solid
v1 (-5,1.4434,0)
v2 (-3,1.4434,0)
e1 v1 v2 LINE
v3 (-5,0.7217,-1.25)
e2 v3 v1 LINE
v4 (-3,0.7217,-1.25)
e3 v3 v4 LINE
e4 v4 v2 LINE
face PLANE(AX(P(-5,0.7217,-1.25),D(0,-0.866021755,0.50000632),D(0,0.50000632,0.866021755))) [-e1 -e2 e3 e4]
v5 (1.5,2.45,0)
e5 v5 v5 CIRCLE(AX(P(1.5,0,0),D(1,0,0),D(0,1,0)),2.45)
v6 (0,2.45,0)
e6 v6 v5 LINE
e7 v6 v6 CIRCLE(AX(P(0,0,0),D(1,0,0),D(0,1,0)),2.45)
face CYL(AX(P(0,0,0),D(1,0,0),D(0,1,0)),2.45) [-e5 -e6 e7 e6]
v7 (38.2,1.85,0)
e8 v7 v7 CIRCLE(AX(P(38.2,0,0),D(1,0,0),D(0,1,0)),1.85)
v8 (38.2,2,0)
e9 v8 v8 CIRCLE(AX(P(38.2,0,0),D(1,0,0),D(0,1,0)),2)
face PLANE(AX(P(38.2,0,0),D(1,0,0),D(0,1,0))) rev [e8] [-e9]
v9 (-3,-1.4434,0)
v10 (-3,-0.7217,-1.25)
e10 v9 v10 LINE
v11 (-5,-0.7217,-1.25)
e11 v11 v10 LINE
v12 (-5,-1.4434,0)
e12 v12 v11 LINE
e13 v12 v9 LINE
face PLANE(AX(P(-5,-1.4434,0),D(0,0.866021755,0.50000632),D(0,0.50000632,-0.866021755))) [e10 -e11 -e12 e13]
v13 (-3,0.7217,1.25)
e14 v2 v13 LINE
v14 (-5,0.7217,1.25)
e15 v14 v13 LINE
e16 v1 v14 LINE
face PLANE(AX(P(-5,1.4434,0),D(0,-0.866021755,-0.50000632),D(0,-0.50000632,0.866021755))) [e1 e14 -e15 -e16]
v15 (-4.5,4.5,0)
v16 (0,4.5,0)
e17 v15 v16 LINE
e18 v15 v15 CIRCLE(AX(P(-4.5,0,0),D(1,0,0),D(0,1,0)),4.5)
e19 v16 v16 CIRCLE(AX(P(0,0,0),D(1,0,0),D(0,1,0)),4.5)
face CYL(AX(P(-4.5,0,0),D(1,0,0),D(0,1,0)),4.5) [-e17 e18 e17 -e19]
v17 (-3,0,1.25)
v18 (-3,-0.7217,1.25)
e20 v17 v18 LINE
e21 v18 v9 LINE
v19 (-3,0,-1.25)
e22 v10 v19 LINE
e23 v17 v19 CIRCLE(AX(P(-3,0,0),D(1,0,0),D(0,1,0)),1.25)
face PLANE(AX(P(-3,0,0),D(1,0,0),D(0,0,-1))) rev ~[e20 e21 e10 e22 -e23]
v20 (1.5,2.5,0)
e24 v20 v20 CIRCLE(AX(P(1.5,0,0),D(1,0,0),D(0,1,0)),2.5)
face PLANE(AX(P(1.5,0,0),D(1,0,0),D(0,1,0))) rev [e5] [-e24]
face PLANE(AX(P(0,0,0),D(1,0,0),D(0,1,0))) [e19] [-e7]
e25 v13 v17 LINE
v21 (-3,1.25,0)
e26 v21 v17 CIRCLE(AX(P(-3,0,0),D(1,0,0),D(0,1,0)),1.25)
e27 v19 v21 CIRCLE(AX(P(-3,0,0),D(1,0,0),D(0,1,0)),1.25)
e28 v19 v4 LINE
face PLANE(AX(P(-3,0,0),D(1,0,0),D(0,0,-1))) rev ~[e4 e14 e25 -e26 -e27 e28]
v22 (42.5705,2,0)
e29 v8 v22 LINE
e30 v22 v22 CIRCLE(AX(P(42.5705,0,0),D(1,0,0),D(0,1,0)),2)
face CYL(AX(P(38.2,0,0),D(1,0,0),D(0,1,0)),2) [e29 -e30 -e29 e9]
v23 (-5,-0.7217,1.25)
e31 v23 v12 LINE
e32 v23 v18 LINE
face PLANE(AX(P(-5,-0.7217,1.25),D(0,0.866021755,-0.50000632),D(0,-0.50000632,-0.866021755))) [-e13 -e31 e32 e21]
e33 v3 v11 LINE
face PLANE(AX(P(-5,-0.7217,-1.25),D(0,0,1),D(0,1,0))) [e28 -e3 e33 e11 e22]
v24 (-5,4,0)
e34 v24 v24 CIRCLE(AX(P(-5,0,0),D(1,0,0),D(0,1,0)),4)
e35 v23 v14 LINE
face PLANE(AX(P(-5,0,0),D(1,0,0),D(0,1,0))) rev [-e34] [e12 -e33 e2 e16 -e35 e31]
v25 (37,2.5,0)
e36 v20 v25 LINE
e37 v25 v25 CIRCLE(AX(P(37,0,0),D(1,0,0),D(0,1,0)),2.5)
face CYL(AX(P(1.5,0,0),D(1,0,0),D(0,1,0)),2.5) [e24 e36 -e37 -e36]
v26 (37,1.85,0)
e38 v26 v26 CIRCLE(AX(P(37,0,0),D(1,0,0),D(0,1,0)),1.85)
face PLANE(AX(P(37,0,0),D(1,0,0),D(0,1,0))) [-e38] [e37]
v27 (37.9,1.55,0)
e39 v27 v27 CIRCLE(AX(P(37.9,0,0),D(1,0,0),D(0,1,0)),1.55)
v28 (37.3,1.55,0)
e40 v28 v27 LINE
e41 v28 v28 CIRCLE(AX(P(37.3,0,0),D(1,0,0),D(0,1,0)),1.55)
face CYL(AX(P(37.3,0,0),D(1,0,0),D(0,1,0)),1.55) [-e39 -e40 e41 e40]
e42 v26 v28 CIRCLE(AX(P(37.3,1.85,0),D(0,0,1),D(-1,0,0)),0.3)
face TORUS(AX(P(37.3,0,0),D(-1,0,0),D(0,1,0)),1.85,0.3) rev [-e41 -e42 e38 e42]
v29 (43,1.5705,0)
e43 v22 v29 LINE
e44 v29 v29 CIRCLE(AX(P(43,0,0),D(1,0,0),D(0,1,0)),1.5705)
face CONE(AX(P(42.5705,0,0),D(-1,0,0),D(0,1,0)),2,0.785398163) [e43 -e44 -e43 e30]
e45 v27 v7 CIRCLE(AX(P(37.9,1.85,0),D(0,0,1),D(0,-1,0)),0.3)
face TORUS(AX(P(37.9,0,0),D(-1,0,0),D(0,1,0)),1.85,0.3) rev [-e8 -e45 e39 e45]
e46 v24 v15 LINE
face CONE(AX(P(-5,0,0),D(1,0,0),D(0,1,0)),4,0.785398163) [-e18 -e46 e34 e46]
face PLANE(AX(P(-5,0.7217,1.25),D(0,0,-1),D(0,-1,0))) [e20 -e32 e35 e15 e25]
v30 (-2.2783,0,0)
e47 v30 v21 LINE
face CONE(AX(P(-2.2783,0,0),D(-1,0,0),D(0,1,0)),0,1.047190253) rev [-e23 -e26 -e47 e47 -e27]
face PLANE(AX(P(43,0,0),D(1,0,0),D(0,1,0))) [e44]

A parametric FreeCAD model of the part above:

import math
import FreeCAD as App
import Part
import Sketcher
from FreeCAD import Vector
Q = App.Units.Quantity

doc = App.newDocument("Part")
params = doc.addObject("Spreadsheet::Sheet", "Params")
for row, (alias, value) in enumerate([
    ("sketch1_radius", "0.3 mm"),
    ("sketch1_width", "2 mm"),
    ("sketch1_width2", "0.6 mm"),
    ("sketch1_width3", "35.5 mm"),
    ("sketch1_width4", "1.5 mm"),
    ("revolution_angle", "360 deg"),
    ("pocket1_length", "2 mm"),
], start=1):
    params.set(f"A{row}", alias)
    params.set(f"B{row}", "=" + value)
    params.setAlias(f"B{row}", alias)

body = doc.addObject("PartDesign::Body", "Body")

# Sketch on XY plane
sketch1 = body.newObject("Sketcher::SketchObject", "Sketch")
sketch1.AttachmentSupport = (doc.getObject("XY_Plane"), [""])
sketch1.MapMode = "FlatFace"
sketch1.addGeometry([
    Part.LineSegment(Vector(-2.278, 0, 0), Vector(43, 0, 0)),  # 0
    Part.LineSegment(Vector(43, 0, 0), Vector(43, 1.571, 0)),  # 1
    Part.LineSegment(Vector(43, 1.571, 0), Vector(42.571, 2, 0)),  # 2
    Part.LineSegment(Vector(42.571, 2, 0), Vector(38.2, 2, 0)),  # 3
    Part.LineSegment(Vector(38.2, 2, 0), Vector(38.2, 1.85, 0)),  # 4
    Part.ArcOfCircle(Part.Circle(Vector(37.9, 1.85, 0), Vector(0, 0, 1), 0.3), math.radians(-90), math.radians(0)),  # 5
    Part.LineSegment(Vector(37.9, 1.55, 0), Vector(37.3, 1.55, 0)),  # 6
    Part.ArcOfCircle(Part.Circle(Vector(37.3, 1.85, 0), Vector(0, 0, 1), 0.3), math.radians(180), math.radians(270)),  # 7
    Part.LineSegment(Vector(37, 1.85, 0), Vector(37, 2.5, 0)),  # 8
    Part.LineSegment(Vector(37, 2.5, 0), Vector(1.5, 2.5, 0)),  # 9
    Part.LineSegment(Vector(1.5, 2.5, 0), Vector(1.5, 2.45, 0)),  # 10
    Part.LineSegment(Vector(1.5, 2.45, 0), Vector(0, 2.45, 0)),  # 11
    Part.LineSegment(Vector(0, 2.45, 0), Vector(0, 4.5, 0)),  # 12
    Part.LineSegment(Vector(0, 4.5, 0), Vector(-4.5, 4.5, 0)),  # 13
    Part.LineSegment(Vector(-4.5, 4.5, 0), Vector(-5, 4, 0)),  # 14
    Part.LineSegment(Vector(-5, 4, 0), Vector(-5, 1.25, 0)),  # 15
    Part.LineSegment(Vector(-5, 1.25, 0), Vector(-3, 1.25, 0)),  # 16
    Part.LineSegment(Vector(-3, 1.25, 0), Vector(-2.278, 0, 0)),  # 17
], False)
sketch1.addConstraint([
    Sketcher.Constraint("Coincident", 0, 2, 1, 1),
    Sketcher.Constraint("Coincident", 1, 2, 2, 1),
    Sketcher.Constraint("Coincident", 2, 2, 3, 1),
    Sketcher.Constraint("Coincident", 3, 2, 4, 1),
    Sketcher.Constraint("Tangent", 4, 2, 5, 2),
    Sketcher.Constraint("Tangent", 5, 1, 6, 1),
    Sketcher.Constraint("Tangent", 6, 2, 7, 2),
    Sketcher.Constraint("Tangent", 7, 1, 8, 1),
    Sketcher.Constraint("Coincident", 8, 2, 9, 1),
    Sketcher.Constraint("Coincident", 9, 2, 10, 1),
    Sketcher.Constraint("Coincident", 10, 2, 11, 1),
    Sketcher.Constraint("Coincident", 11, 2, 12, 1),
    Sketcher.Constraint("Coincident", 12, 2, 13, 1),
    Sketcher.Constraint("Coincident", 13, 2, 14, 1),
    Sketcher.Constraint("Coincident", 14, 2, 15, 1),
    Sketcher.Constraint("Coincident", 15, 2, 16, 1),
    Sketcher.Constraint("Coincident", 16, 2, 17, 1),
    Sketcher.Constraint("Coincident", 17, 2, 0, 1),
    Sketcher.Constraint("Horizontal", 0),
    Sketcher.Constraint("Vertical", 1),
    Sketcher.Constraint("Horizontal", 3),
    Sketcher.Constraint("Vertical", 4),
    Sketcher.Constraint("Horizontal", 6),
    Sketcher.Constraint("Vertical", 8),
    Sketcher.Constraint("Horizontal", 9),
    Sketcher.Constraint("Vertical", 10),
    Sketcher.Constraint("Horizontal", 11),
    Sketcher.Constraint("Vertical", 12),
    Sketcher.Constraint("Horizontal", 13),
    Sketcher.Constraint("Vertical", 15),
    Sketcher.Constraint("Horizontal", 16),
    Sketcher.Constraint("Equal", 5, 7),
    Sketcher.Constraint("PointOnObject", 0, 2, -1),
    Sketcher.Constraint("PointOnObject", 11, 2, -2),
    Sketcher.Constraint("Perpendicular", 2, 14),
    Sketcher.Constraint("Radius", 5, Q("0.3 mm")),
    Sketcher.Constraint("DistanceX", 16, 1, 16, 2, Q("2 mm")),
    Sketcher.Constraint("Angle", 2, Q("135 deg")),
    Sketcher.Constraint("Angle", 17, Q("-59.9996 deg")),
    Sketcher.Constraint("DistanceX", 6, 2, 6, 1, Q("0.6 mm")),
    Sketcher.Constraint("DistanceX", 9, 2, 9, 1, Q("35.5 mm")),
    Sketcher.Constraint("DistanceX", 11, 2, 11, 1, Q("1.5 mm")),
    Sketcher.Constraint("DistanceX", 13, 2, 13, 1, Q("4.5 mm")),
    Sketcher.Constraint("DistanceX", -1, 1, 0, 2, Q("43 mm")),
    Sketcher.Constraint("DistanceY", -1, 1, 2, 2, Q("2 mm")),
    Sketcher.Constraint("DistanceX", 14, 2, -1, 1, Q("5 mm")),
    Sketcher.Constraint("DistanceY", -1, 1, 14, 2, Q("4 mm")),
    Sketcher.Constraint("DistanceY", 9, 2, 12, 2, Q("2 mm")),
    Sketcher.Constraint("DistanceY", 4, 2, 4, 1, Q("0.15 mm")),
    Sketcher.Constraint("DistanceY", 10, 2, 10, 1, Q("0.05 mm")),
    Sketcher.Constraint("DistanceY", 15, 2, 15, 1, Q("2.75 mm")),
    Sketcher.Constraint("DistanceX", 3, 2, 3, 1, Q("4.3705 mm")),
])
sketch1.setExpression("Constraints[35]", "Params.sketch1_radius")
sketch1.setExpression("Constraints[36]", "Params.sketch1_width")
sketch1.setExpression("Constraints[39]", "Params.sketch1_width2")
sketch1.setExpression("Constraints[40]", "Params.sketch1_width3")
sketch1.setExpression("Constraints[41]", "Params.sketch1_width4")
revolution = body.newObject("PartDesign::Revolution", "Revolution")
revolution.Profile = sketch1
revolution.ReferenceAxis = (sketch1, ["H_Axis"])
revolution.setExpression("Angle", "Params.revolution_angle")

# Sketch on YZ plane
sketch2 = body.newObject("Sketcher::SketchObject", "Sketch001")
sketch2.AttachmentSupport = (doc.getObject("YZ_Plane"), [""])
sketch2.MapMode = "FlatFace"
sketch2.AttachmentOffset = App.Placement(Vector(0, 0, -5), App.Rotation())
sketch2.addGeometry([
    Part.LineSegment(Vector(0.7, 1.2, 0), Vector(-0.7, 1.2, 0)),  # 0
    Part.LineSegment(Vector(-0.7, 1.2, 0), Vector(-1.4, 0, 0)),  # 1
    Part.LineSegment(Vector(-1.4, 0, 0), Vector(-0.7, -1.2, 0)),  # 2
    Part.LineSegment(Vector(-0.7, -1.2, 0), Vector(0.7, -1.2, 0)),  # 3
    Part.LineSegment(Vector(0.7, -1.2, 0), Vector(1.4, 0, 0)),  # 4
    Part.LineSegment(Vector(1.4, 0, 0), Vector(0.7, 1.2, 0)),  # 5
], False)
sketch2.addConstraint([
    Sketcher.Constraint("Coincident", 0, 2, 1, 1),
    Sketcher.Constraint("Coincident", 1, 2, 2, 1),
    Sketcher.Constraint("Coincident", 2, 2, 3, 1),
    Sketcher.Constraint("Coincident", 3, 2, 4, 1),
    Sketcher.Constraint("Coincident", 4, 2, 5, 1),
    Sketcher.Constraint("Coincident", 5, 2, 0, 1),
    Sketcher.Constraint("Horizontal", 0),
    Sketcher.Constraint("Horizontal", 3),
    Sketcher.Constraint("Symmetric", 0, 2, 3, 2, -1, 1),
    Sketcher.Constraint("Symmetric", 1, 2, 4, 2, -1, 1),
    Sketcher.Constraint("PointOnObject", 1, 2, -1),
    Sketcher.Constraint("Parallel", 2, 5),
    Sketcher.Constraint("Vertical", 0, 2, 2, 2),
    Sketcher.Constraint("Angle", 1, Q("-120.0004 deg")),
    Sketcher.Constraint("DistanceY", 2, 2, 0, 2, Q("2.5 mm")),
    Sketcher.Constraint("DistanceX", 0, 2, 0, 1, Q("1.4434 mm")),
])
pocket1 = body.newObject("PartDesign::Pocket", "Pocket")
pocket1.Profile = sketch2
pocket1.setExpression("Length", "Params.pocket1_length")
pocket1.Reversed = True

doc.recompute()
